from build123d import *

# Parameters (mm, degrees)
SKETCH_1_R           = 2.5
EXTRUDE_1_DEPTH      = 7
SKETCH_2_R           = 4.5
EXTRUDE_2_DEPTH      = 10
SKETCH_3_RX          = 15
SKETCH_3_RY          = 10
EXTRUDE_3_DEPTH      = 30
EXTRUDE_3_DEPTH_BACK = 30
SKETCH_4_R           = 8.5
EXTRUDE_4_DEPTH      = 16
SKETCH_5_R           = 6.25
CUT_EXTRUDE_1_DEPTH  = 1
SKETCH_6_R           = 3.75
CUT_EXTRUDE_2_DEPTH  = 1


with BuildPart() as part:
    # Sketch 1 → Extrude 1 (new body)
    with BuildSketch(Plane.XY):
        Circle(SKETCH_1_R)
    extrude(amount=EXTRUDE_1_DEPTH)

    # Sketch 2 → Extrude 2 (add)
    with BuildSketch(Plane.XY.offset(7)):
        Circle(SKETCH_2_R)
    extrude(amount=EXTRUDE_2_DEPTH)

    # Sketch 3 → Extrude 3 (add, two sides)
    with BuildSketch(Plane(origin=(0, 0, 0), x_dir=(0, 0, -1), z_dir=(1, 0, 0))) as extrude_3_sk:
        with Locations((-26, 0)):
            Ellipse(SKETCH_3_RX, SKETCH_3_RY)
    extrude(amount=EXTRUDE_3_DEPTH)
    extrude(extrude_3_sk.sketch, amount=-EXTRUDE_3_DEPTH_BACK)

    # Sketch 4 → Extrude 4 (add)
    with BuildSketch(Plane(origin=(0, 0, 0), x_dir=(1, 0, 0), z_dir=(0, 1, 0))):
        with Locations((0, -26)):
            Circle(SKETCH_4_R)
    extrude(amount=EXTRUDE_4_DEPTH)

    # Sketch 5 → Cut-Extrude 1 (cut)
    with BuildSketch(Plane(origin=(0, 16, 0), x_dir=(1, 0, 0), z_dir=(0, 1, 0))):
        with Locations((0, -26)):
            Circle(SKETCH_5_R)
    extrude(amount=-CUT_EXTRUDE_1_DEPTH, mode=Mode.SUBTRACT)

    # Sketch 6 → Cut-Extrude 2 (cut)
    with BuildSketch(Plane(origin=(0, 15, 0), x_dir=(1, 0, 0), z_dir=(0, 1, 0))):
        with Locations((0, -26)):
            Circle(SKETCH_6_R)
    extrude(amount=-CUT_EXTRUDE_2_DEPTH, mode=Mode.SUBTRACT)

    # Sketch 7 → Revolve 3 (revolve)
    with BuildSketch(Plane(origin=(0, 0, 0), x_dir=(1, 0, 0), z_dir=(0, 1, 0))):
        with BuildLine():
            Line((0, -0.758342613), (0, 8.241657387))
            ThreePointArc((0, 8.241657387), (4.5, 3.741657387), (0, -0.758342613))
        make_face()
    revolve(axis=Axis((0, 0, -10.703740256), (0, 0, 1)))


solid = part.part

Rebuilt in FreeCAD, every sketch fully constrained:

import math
import FreeCAD as App
import Part
import Sketcher

doc = App.newDocument("Part")
params = doc.addObject("Spreadsheet::Sheet", "Params")
for row, (alias, value) in enumerate([
    ("sketch1_diameter", "5 mm"),
    ("pad1_length", "7 mm"),
    ("sketch2_diameter", "9 mm"),
    ("pad2_length", "10 mm"),
    ("pad3_length", "30 mm"),
    ("pad3_length2", "30 mm"),
    ("sketch4_diameter", "17 mm"),
    ("pad4_length", "16 mm"),
    ("sketch5_diameter", "12.5 mm"),
    ("pocket1_length", "1 mm"),
    ("sketch6_diameter", "7.5 mm"),
    ("pocket2_length", "1 mm"),
    ("sketch7_radius", "4.5 mm"),
    ("revolution_angle", "360 deg"),
], start=1):
    params.set(f"A{row}", alias)
    params.set(f"B{row}", "=" + value)
    params.setAlias(f"B{row}", alias)

body = doc.addObject("PartDesign::Body", "Body")

# Sketch on XY plane
sketch1 = body.newObject("Sketcher::SketchObject", "Sketch")
sketch1.AttachmentSupport = (doc.getObject("XY_Plane"), [""])
sketch1.MapMode = "FlatFace"
sketch1.addGeometry(Part.Circle(App.Vector(0, 0, 0), App.Vector(0, 0, 1), 2.5), False)
sketch1.addConstraint([
    Sketcher.Constraint("Coincident", 0, 3, -1, 1),
    Sketcher.Constraint("Diameter", 0, 5.0),
])
sketch1.setExpression("Constraints[1]", "Params.sketch1_diameter")
pad1 = body.newObject("PartDesign::Pad", "Pad")
pad1.Profile = sketch1
pad1.setExpression("Length", "Params.pad1_length")

# Sketch on XY plane
sketch2 = body.newObject("Sketcher::SketchObject", "Sketch001")
sketch2.AttachmentSupport = (doc.getObject("XY_Plane"), [""])
sketch2.MapMode = "FlatFace"
sketch2.AttachmentOffset = App.Placement(App.Vector(0, 0, 7), App.Rotation())
sketch2.addGeometry(Part.Circle(App.Vector(0, 0, 0), App.Vector(0, 0, 1), 4.5), False)
sketch2.addConstraint([
    Sketcher.Constraint("Coincident", 0, 3, -1, 1),
    Sketcher.Constraint("Diameter", 0, 9.0),
])
sketch2.setExpression("Constraints[1]", "Params.sketch2_diameter")
pad2 = body.newObject("PartDesign::Pad", "Pad001")
pad2.Profile = sketch2
pad2.setExpression("Length", "Params.pad2_length")

# Sketch on YZ plane
sketch3 = body.newObject("Sketcher::SketchObject", "Sketch002")
sketch3.AttachmentSupport = (doc.getObject("YZ_Plane"), [""])
sketch3.MapMode = "FlatFace"
sketch3.addGeometry(Part.Ellipse(App.Vector(0, 11, 0), App.Vector(10, 26, 0), App.Vector(0, 26, 0)), False)
sketch3.addConstraint(Sketcher.Constraint("Block", 0))
pad3 = body.newObject("PartDesign::Pad", "Pad002")
pad3.Profile = sketch3
pad3.Type = "TwoLengths"
pad3.setExpression("Length", "Params.pad3_length")
pad3.setExpression("Length2", "Params.pad3_length2")

# Sketch on XZ plane
sketch4 = body.newObject("Sketcher::SketchObject", "Sketch003")
sketch4.AttachmentSupport = (doc.getObject("XZ_Plane"), [""])
sketch4.MapMode = "FlatFace"
sketch4.addGeometry(Part.Circle(App.Vector(0, 26, 0), App.Vector(0, 0, 1), 8.5), False)
sketch4.addConstraint([
    Sketcher.Constraint("PointOnObject", 0, 3, -2),
    Sketcher.Constraint("Diameter", 0, 17.0),
    Sketcher.Constraint("DistanceY", -1, 1, 0, 3, 26.0),
])
sketch4.setExpression("Constraints[1]", "Params.sketch4_diameter")
pad4 = body.newObject("PartDesign::Pad", "Pad003")
pad4.Profile = sketch4
pad4.setExpression("Length", "Params.pad4_length")
pad4.Reversed = True

# Sketch on XZ plane
sketch5 = body.newObject("Sketcher::SketchObject", "Sketch004")
sketch5.AttachmentSupport = (doc.getObject("XZ_Plane"), [""])
sketch5.MapMode = "FlatFace"
sketch5.AttachmentOffset = App.Placement(App.Vector(0, 0, -16), App.Rotation())
sketch5.addGeometry(Part.Circle(App.Vector(0, 26, 0), App.Vector(0, 0, 1), 6.25), False)
sketch5.addConstraint([
    Sketcher.Constraint("PointOnObject", 0, 3, -2),
    Sketcher.Constraint("Diameter", 0, 12.5),
    Sketcher.Constraint("DistanceY", -1, 1, 0, 3, 26.0),
])
sketch5.setExpression("Constraints[1]", "Params.sketch5_diameter")
pocket1 = body.newObject("PartDesign::Pocket", "Pocket")
pocket1.Profile = sketch5
pocket1.setExpression("Length", "Params.pocket1_length")
pocket1.Reversed = True

# Sketch on XZ plane
sketch6 = body.newObject("Sketcher::SketchObject", "Sketch005")
sketch6.AttachmentSupport = (doc.getObject("XZ_Plane"), [""])
sketch6.MapMode = "FlatFace"
sketch6.AttachmentOffset = App.Placement(App.Vector(0, 0, -15), App.Rotation())
sketch6.addGeometry(Part.Circle(App.Vector(0, 26, 0), App.Vector(0, 0, 1), 3.75), False)
sketch6.addConstraint([
    Sketcher.Constraint("PointOnObject", 0, 3, -2),
    Sketcher.Constraint("Diameter", 0, 7.5),
    Sketcher.Constraint("DistanceY", -1, 1, 0, 3, 26.0),
])
sketch6.setExpression("Constraints[1]", "Params.sketch6_diameter")
pocket2 = body.newObject("PartDesign::Pocket", "Pocket001")
pocket2.Profile = sketch6
pocket2.setExpression("Length", "Params.pocket2_length")
pocket2.Reversed = True

# Sketch on XZ plane
sketch7 = body.newObject("Sketcher::SketchObject", "Sketch006")
sketch7.AttachmentSupport = (doc.getObject("XZ_Plane"), [""])
sketch7.MapMode = "FlatFace"
sketch7.addGeometry([
    Part.LineSegment(App.Vector(0, -8.241657, 0), App.Vector(0, 0.758343, 0)),
    Part.ArcOfCircle(Part.Circle(App.Vector(0, -3.741657, 0), App.Vector(0, 0, 1), 4.5), math.radians(-90), math.radians(90)),
], False)
sketch7.addConstraint([
    Sketcher.Constraint("Coincident", 0, 1, 1, 1),
    Sketcher.Constraint("Coincident", 1, 2, 0, 2),
    Sketcher.Constraint("Vertical", 0),
    Sketcher.Constraint("PointOnObject", 1, 3, -2),
    Sketcher.Constraint("PointOnObject", 0, 1, -2),
    Sketcher.Constraint("Radius", 1, 4.5),
    Sketcher.Constraint("DistanceY", 1, 3, -1, 1, 3.741657),
])
sketch7.setExpression("Constraints[5]", "Params.sketch7_radius")
revolution = body.newObject("PartDesign::Revolution", "Revolution")
revolution.Profile = sketch7
revolution.ReferenceAxis = (sketch7, ["V_Axis"])
revolution.setExpression("Angle", "Params.revolution_angle")

doc.recompute()
